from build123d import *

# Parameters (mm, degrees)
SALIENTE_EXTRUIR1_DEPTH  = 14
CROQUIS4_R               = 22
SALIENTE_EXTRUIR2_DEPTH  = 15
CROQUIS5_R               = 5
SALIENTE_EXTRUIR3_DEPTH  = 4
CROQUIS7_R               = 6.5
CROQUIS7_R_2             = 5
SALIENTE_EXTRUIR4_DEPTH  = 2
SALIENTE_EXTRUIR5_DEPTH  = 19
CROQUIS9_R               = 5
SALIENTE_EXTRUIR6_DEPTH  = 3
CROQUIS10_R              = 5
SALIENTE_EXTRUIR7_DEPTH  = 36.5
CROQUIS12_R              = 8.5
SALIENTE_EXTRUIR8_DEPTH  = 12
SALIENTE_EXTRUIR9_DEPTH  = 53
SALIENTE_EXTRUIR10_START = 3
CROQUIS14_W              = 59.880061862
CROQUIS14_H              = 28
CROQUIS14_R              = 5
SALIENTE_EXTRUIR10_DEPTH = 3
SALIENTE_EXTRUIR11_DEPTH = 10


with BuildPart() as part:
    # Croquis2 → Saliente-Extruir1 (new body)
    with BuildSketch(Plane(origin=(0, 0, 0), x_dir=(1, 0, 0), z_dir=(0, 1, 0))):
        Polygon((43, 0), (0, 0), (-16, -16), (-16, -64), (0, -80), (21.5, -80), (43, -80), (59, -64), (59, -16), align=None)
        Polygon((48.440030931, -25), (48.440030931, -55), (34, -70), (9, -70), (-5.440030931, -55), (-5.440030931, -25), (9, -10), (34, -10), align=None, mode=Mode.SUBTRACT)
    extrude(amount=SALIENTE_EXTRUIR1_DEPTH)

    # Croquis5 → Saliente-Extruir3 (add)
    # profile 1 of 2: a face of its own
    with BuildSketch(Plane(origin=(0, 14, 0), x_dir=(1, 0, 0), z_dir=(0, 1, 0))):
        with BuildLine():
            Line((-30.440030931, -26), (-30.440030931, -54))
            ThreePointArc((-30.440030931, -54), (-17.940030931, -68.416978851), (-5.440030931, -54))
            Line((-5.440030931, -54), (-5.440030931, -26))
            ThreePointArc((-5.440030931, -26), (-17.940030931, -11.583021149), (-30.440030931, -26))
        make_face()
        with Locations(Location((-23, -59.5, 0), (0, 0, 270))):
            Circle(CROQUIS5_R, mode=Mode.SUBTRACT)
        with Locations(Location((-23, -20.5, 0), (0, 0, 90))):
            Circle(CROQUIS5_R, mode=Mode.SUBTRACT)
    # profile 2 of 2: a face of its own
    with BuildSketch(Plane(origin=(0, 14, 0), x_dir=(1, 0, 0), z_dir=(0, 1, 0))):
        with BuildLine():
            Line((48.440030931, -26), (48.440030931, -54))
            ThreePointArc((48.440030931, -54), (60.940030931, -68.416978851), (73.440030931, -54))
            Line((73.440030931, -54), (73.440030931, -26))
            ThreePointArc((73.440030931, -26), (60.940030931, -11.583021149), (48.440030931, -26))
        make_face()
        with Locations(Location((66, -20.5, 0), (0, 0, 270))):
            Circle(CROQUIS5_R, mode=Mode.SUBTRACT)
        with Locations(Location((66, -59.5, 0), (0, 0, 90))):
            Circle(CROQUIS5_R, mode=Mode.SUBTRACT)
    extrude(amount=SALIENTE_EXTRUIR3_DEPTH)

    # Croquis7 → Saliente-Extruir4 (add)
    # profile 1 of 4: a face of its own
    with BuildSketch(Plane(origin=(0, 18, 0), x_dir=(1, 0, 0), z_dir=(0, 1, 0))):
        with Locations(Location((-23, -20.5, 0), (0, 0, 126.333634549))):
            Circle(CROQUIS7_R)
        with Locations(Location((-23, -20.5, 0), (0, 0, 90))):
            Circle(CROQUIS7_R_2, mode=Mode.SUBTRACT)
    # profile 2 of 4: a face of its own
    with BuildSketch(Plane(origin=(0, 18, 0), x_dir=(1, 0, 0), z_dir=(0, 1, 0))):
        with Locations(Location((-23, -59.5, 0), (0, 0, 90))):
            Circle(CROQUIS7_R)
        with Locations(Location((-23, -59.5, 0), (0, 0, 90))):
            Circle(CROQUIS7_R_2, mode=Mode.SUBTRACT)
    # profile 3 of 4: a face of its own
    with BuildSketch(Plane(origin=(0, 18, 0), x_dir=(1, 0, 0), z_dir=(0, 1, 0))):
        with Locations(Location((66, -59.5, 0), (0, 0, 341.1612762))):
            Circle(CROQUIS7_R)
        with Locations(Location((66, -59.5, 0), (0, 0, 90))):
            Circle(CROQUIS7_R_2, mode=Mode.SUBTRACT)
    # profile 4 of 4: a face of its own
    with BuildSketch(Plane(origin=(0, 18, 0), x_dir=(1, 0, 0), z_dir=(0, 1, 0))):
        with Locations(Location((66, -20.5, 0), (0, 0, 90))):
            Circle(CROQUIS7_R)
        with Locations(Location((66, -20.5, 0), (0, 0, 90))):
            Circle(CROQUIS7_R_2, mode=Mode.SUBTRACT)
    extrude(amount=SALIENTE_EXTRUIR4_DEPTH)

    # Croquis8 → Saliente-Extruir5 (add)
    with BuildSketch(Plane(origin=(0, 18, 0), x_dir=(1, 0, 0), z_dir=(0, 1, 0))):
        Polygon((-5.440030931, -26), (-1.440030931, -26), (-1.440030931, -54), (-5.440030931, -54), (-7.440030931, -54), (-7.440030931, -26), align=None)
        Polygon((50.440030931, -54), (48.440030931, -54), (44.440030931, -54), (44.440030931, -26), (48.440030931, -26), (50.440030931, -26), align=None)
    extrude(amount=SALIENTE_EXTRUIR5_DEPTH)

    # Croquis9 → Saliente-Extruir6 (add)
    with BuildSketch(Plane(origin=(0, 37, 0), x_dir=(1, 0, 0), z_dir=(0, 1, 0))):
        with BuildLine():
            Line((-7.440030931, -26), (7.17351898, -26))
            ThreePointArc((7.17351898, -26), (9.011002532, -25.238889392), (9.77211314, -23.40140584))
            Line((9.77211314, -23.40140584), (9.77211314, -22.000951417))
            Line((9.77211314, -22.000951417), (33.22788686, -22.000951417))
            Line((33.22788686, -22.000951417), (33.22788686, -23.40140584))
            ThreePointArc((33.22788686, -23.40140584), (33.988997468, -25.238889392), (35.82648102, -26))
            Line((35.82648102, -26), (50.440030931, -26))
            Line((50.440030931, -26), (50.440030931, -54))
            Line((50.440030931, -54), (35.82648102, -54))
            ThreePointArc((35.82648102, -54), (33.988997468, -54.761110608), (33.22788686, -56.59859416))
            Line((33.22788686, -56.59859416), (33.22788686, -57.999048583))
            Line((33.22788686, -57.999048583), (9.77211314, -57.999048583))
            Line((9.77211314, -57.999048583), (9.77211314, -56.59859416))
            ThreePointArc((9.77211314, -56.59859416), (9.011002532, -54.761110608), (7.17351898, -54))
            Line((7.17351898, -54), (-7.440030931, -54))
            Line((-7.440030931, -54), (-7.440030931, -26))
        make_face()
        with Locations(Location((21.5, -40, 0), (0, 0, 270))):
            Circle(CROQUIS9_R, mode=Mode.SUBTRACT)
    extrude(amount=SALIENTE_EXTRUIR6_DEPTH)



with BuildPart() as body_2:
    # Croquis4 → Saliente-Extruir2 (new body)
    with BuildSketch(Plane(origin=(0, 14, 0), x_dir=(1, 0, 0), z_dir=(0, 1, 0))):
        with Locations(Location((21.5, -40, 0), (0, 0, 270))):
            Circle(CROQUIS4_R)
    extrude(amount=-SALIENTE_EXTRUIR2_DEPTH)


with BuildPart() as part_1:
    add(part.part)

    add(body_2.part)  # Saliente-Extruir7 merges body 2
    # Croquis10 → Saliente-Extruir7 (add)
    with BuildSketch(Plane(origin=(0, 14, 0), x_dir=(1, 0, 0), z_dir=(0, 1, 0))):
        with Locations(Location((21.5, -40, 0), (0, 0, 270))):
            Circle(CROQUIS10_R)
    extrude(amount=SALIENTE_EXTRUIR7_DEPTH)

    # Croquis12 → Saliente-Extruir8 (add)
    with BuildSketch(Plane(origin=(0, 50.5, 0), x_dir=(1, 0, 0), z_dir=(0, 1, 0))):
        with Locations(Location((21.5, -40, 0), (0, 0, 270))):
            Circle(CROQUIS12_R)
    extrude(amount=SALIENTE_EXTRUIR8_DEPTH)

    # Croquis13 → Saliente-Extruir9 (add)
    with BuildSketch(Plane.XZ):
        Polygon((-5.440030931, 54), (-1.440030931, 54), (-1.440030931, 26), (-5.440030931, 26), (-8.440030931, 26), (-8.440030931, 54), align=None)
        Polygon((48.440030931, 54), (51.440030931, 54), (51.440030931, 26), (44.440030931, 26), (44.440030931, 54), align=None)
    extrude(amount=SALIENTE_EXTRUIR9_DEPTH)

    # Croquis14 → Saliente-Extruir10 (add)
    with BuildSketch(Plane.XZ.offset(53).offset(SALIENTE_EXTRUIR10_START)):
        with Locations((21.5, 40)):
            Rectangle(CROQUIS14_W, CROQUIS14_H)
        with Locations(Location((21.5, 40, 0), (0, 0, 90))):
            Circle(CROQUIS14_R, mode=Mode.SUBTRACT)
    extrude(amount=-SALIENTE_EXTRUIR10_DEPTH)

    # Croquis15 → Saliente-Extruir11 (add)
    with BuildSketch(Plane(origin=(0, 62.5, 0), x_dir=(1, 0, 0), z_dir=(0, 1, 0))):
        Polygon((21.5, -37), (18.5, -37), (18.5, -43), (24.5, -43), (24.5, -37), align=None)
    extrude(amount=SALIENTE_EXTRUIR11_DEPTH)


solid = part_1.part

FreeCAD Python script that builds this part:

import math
import FreeCAD as App
import Part
import Sketcher
from FreeCAD import Vector


def add_polygon(sketch, points):
    """Adds a closed chain of lines whose ends are joined by coincident constraints."""
    first, n = sketch.GeometryCount, len(points)
    for a, b in zip(points, points[1:] + points[:1]):
        sketch.addGeometry(Part.LineSegment(App.Vector(*a, 0), App.Vector(*b, 0)), False)
    for i in range(n):
        sketch.addConstraint(Sketcher.Constraint("Coincident", first + i, 2, first + (i + 1) % n, 1))

doc = App.newDocument("Part")
body = doc.addObject("PartDesign::Body", "Body")

# Sketch on XZ plane
sketch1 = doc.addObject("Sketcher::SketchObject", "Sketch")
body.addObject(sketch1)
sketch1.AttachmentSupport = (doc.XZ_Plane, [""])
sketch1.MapMode = "FlatFace"
add_polygon(sketch1, [(43, 0), (0, 0), (-16, 16), (-16, 64), (0, 80), (43, 80), (59, 64), (59, 16)])  # lines 0-7
add_polygon(sketch1, [(34, 10), (48, 25), (48, 55), (34, 70), (9, 70), (-5, 55), (-5, 25), (9, 10)])  # lines 8-15
sketch1.addConstraint(Sketcher.Constraint("Horizontal", 0))
sketch1.addConstraint(Sketcher.Constraint("Vertical", 2))
sketch1.addConstraint(Sketcher.Constraint("Horizontal", 4))
sketch1.addConstraint(Sketcher.Constraint("Vertical", 6))
sketch1.addConstraint(Sketcher.Constraint("Vertical", 9))
sketch1.addConstraint(Sketcher.Constraint("Horizontal", 11))
sketch1.addConstraint(Sketcher.Constraint("Vertical", 13))
sketch1.addConstraint(Sketcher.Constraint("Horizontal", 15))
sketch1.addConstraint(Sketcher.Constraint("Coincident", 0, 2, -1, 1))
sketch1.addConstraint(Sketcher.Constraint("PointOnObject", 3, 2, -2))
sketch1.addConstraint(Sketcher.Constraint("Perpendicular", 1, 3))
sketch1.addConstraint(Sketcher.Constraint("Perpendicular", 3, 5))
sketch1.addConstraint(Sketcher.Constraint("Perpendicular", 5, 7))
sketch1.addConstraint(Sketcher.Constraint("Parallel", 8, 12))
sketch1.addConstraint(Sketcher.Constraint("Parallel", 10, 14))
sketch1.addConstraint(Sketcher.Constraint("Horizontal", 2, 2, 5, 2))
sketch1.addConstraint(Sketcher.Constraint("Horizontal", 1, 2, 6, 2))
sketch1.addConstraint(Sketcher.Constraint("Horizontal", 9, 2, 12, 2))
sketch1.addConstraint(Sketcher.Constraint("Horizontal", 8, 2, 13, 2))
sketch1.addConstraint(Sketcher.Constraint("Vertical", 4, 2, 7, 2))
sketch1.addConstraint(Sketcher.Constraint("Vertical", 11, 2, 14, 2))
sketch1.addConstraint(Sketcher.Constraint("Vertical", 10, 2, 15, 2))
sketch1.addConstraint(Sketcher.Constraint("DistanceX", 0, 2, 0, 1, 43.0))
sketch1.addConstraint(Sketcher.Constraint("DistanceX", 11, 2, 11, 1, 25.0))
sketch1.addConstraint(Sketcher.Constraint("DistanceY", 2, 1, 2, 2, 48.0))
sketch1.addConstraint(Sketcher.Constraint("DistanceY", 9, 1, 9, 2, 30.0))
sketch1.addConstraint(Sketcher.Constraint("DistanceX", 1, 2, -1, 1, 16.0))
sketch1.addConstraint(Sketcher.Constraint("DistanceY", -1, 1, 8, 2, 25.0))
sketch1.addConstraint(Sketcher.Constraint("DistanceX", -1, 1, 10, 2, 34.0))
sketch1.addConstraint(Sketcher.Constraint("DistanceY", -1, 1, 10, 2, 70.0))
sketch1.addConstraint(Sketcher.Constraint("Distance", 8, 20.821011))
pad1 = doc.addObject("PartDesign::Pad", "Pad")
body.addObject(pad1)
pad1.Profile = sketch1
pad1.Length = 14
pad1.Reversed = True

# Sketch on XZ plane
sketch2 = doc.addObject("Sketcher::SketchObject", "Sketch001")
body.addObject(sketch2)
sketch2.AttachmentSupport = (doc.XZ_Plane, [""])
sketch2.MapMode = "FlatFace"
sketch2.AttachmentOffset = App.Placement(Vector(0, 0, -14), App.Rotation())
sketch2.addGeometry(Part.LineSegment(Vector(-30, 26, 0), Vector(-30, 54, 0)), False)
sketch2.addGeometry(Part.ArcOfCircle(Part.Circle(Vector(-18, 56, 0), Vector(0, 0, 1), 13), math.radians(-8), math.radians(188)), False)
sketch2.addGeometry(Part.LineSegment(Vector(-5, 54, 0), Vector(-5, 26, 0)), False)
sketch2.addGeometry(Part.ArcOfCircle(Part.Circle(Vector(-18, 24, 0), Vector(0, 0, 1), 13), math.radians(172), math.radians(368)), False)
sketch2.addGeometry(Part.Circle(Vector(-23, 60, 0), Vector(0, 0, 1), 5), False)
sketch2.addGeometry(Part.Circle(Vector(-23, 20, 0), Vector(0, 0, 1), 5), False)
sketch2.addGeometry(Part.LineSegment(Vector(48, 26, 0), Vector(48, 54, 0)), False)
sketch2.addGeometry(Part.ArcOfCircle(Part.Circle(Vector(61, 56, 0), Vector(0, 0, 1), 13), math.radians(-8), math.radians(188)), False)
sketch2.addGeometry(Part.LineSegment(Vector(73, 54, 0), Vector(73, 26, 0)), False)
sketch2.addGeometry(Part.ArcOfCircle(Part.Circle(Vector(61, 24, 0), Vector(0, 0, 1), 13), math.radians(172), math.radians(368)), False)
sketch2.addGeometry(Part.Circle(Vector(66, 60, 0), Vector(0, 0, 1), 5), False)
sketch2.addGeometry(Part.Circle(Vector(66, 20, 0), Vector(0, 0, 1), 5), False)
sketch2.addConstraint(Sketcher.Constraint("Coincident", 0, 2, 1, 2))
sketch2.addConstraint(Sketcher.Constraint("Coincident", 1, 1, 2, 1))
sketch2.addConstraint(Sketcher.Constraint("Coincident", 2, 2, 3, 2))
sketch2.addConstraint(Sketcher.Constraint("Coincident", 3, 1, 0, 1))
sketch2.addConstraint(Sketcher.Constraint("Coincident", 6, 2, 7, 2))
sketch2.addConstraint(Sketcher.Constraint("Coincident", 7, 1, 8, 1))
sketch2.addConstraint(Sketcher.Constraint("Coincident", 8, 2, 9, 2))
sketch2.addConstraint(Sketcher.Constraint("Coincident", 9, 1, 6, 1))
sketch2.addConstraint(Sketcher.Constraint("Vertical", 0))
sketch2.addConstraint(Sketcher.Constraint("Vertical", 2))
sketch2.addConstraint(Sketcher.Constraint("Vertical", 6))
sketch2.addConstraint(Sketcher.Constraint("Vertical", 8))
sketch2.addConstraint(Sketcher.Constraint("Equal", 1, 3))
sketch2.addConstraint(Sketcher.Constraint("Equal", 4, 5))
sketch2.addConstraint(Sketcher.Constraint("Equal", 3, 7))
sketch2.addConstraint(Sketcher.Constraint("Equal", 7, 9))
sketch2.addConstraint(Sketcher.Constraint("Equal", 5, 10))
sketch2.addConstraint(Sketcher.Constraint("Equal", 10, 11))
sketch2.addConstraint(Sketcher.Constraint("Horizontal", 1, 3, 7, 3))
sketch2.addConstraint(Sketcher.Constraint("Horizontal", 3, 3, 9, 3))
sketch2.addConstraint(Sketcher.Constraint("Horizontal", 4, 3, 10, 3))
sketch2.addConstraint(Sketcher.Constraint("Horizontal", 5, 3, 11, 3))
sketch2.addConstraint(Sketcher.Constraint("Horizontal", 0, 2, 1, 1))
sketch2.addConstraint(Sketcher.Constraint("Horizontal", 2, 2, 3, 1))
sketch2.addConstraint(Sketcher.Constraint("Horizontal", 1, 1, 6, 2))
sketch2.addConstraint(Sketcher.Constraint("Horizontal", 6, 2, 7, 1))
sketch2.addConstraint(Sketcher.Constraint("Horizontal", 3, 1, 8, 2))
sketch2.addConstraint(Sketcher.Constraint("Vertical", 4, 3, 5, 3))
sketch2.addConstraint(Sketcher.Constraint("Vertical", 10, 3, 11, 3))
sketch2.addConstraint(Sketcher.Constraint("Diameter", 4, 10.0))
sketch2.addConstraint(Sketcher.Constraint("DistanceY", 0, 1, 0, 2, 28.0))
sketch2.addConstraint(Sketcher.Constraint("DistanceX", 4, 3, -1, 1, 23.0))
sketch2.addConstraint(Sketcher.Constraint("DistanceX", -1, 1, 10, 3, 66.0))
sketch2.addConstraint(Sketcher.Constraint("DistanceY", -1, 1, 0, 2, 54.0))
sketch2.addConstraint(Sketcher.Constraint("DistanceY", 5, 3, 4, 3, 39.0))
sketch2.addConstraint(Sketcher.Constraint("DistanceX", 0, 2, 1, 1, 25.0))
sketch2.addConstraint(Sketcher.Constraint("DistanceY", -1, 1, 4, 3, 59.5))
sketch2.addConstraint(Sketcher.Constraint("Radius", 1, 12.627447))
sketch2.addConstraint(Sketcher.Constraint("DistanceX", 1, 3, -1, 1, 17.940031))
sketch2.addConstraint(Sketcher.Constraint("DistanceX", -1, 1, 7, 3, 60.940031))
pad2 = doc.addObject("PartDesign::Pad", "Pad001")
body.addObject(pad2)
pad2.Profile = sketch2
pad2.Length = 4
pad2.Reversed = True

# Sketch on XZ plane
sketch3 = doc.addObject("Sketcher::SketchObject", "Sketch002")
body.addObject(sketch3)
sketch3.AttachmentSupport = (doc.XZ_Plane, [""])
sketch3.MapMode = "FlatFace"
sketch3.AttachmentOffset = App.Placement(Vector(0, 0, -18), App.Rotation())
sketch3.addGeometry(Part.Circle(Vector(-23, 20, 0), Vector(0, 0, 1), 6), False)
sketch3.addGeometry(Part.Circle(Vector(-23, 20, 0), Vector(0, 0, 1), 5), False)
sketch3.addGeometry(Part.Circle(Vector(-23, 60, 0), Vector(0, 0, 1), 6), False)
sketch3.addGeometry(Part.Circle(Vector(-23, 60, 0), Vector(0, 0, 1), 5), False)
sketch3.addGeometry(Part.Circle(Vector(66, 60, 0), Vector(0, 0, 1), 6), False)
sketch3.addGeometry(Part.Circle(Vector(66, 60, 0), Vector(0, 0, 1), 5), False)
sketch3.addGeometry(Part.Circle(Vector(66, 20, 0), Vector(0, 0, 1), 6), False)
sketch3.addGeometry(Part.Circle(Vector(66, 20, 0), Vector(0, 0, 1), 5), False)
sketch3.addConstraint(Sketcher.Constraint("Coincident", 1, 3, 0, 3))
sketch3.addConstraint(Sketcher.Constraint("Coincident", 3, 3, 2, 3))
sketch3.addConstraint(Sketcher.Constraint("Coincident", 5, 3, 4, 3))
sketch3.addConstraint(Sketcher.Constraint("Coincident", 7, 3, 6, 3))
sketch3.addConstraint(Sketcher.Constraint("Equal", 0, 2))
sketch3.addConstraint(Sketcher.Constraint("Equal", 1, 3))
sketch3.addConstraint(Sketcher.Constraint("Equal", 2, 4))
sketch3.addConstraint(Sketcher.Constraint("Equal", 3, 5))
sketch3.addConstraint(Sketcher.Constraint("Equal", 4, 6))
sketch3.addConstraint(Sketcher.Constraint("Equal", 5, 7))
sketch3.addConstraint(Sketcher.Constraint("Horizontal", 3, 3, 4, 3))
sketch3.addConstraint(Sketcher.Constraint("Horizontal", 1, 3, 6, 3))
sketch3.addConstraint(Sketcher.Constraint("Vertical", 1, 3, 2, 3))
sketch3.addConstraint(Sketcher.Constraint("Vertical", 5, 3, 6, 3))
sketch3.addConstraint(Sketcher.Constraint("Diameter", 0, 13.0))
sketch3.addConstraint(Sketcher.Constraint("Diameter", 1, 10.0))
sketch3.addConstraint(Sketcher.Constraint("DistanceX", 0, 3, -1, 1, 23.0))
sketch3.addConstraint(Sketcher.Constraint("DistanceX", -1, 1, 4, 3, 66.0))
sketch3.addConstraint(Sketcher.Constraint("DistanceY", 0, 3, 2, 3, 39.0))
sketch3.addConstraint(Sketcher.Constraint("DistanceY", -1, 1, 0, 3, 20.5))
pad3 = doc.addObject("PartDesign::Pad", "Pad002")
body.addObject(pad3)
pad3.Profile = sketch3
pad3.Length = 2
pad3.Reversed = True

# Sketch on XZ plane
sketch4 = doc.addObject("Sketcher::SketchObject", "Sketch003")
body.addObject(sketch4)
sketch4.AttachmentSupport = (doc.XZ_Plane, [""])
sketch4.MapMode = "FlatFace"
sketch4.AttachmentOffset = App.Placement(Vector(0, 0, -18), App.Rotation())
add_polygon(sketch4, [(-1, 26), (-7, 26), (-7, 54), (-1, 54)])  # lines 0-3
add_polygon(sketch4, [(44, 54), (50, 54), (50, 26), (44, 26)])  # lines 4-7
sketch4.addConstraint(Sketcher.Constraint("Horizontal", 0))
sketch4.addConstraint(Sketcher.Constraint("Vertical", 1))
sketch4.addConstraint(Sketcher.Constraint("Horizontal", 2))
sketch4.addConstraint(Sketcher.Constraint("Vertical", 3))
sketch4.addConstraint(Sketcher.Constraint("Horizontal", 4))
sketch4.addConstraint(Sketcher.Constraint("Vertical", 5))
sketch4.addConstraint(Sketcher.Constraint("Horizontal", 6))
sketch4.addConstraint(Sketcher.Constraint("Vertical", 7))
sketch4.addConstraint(Sketcher.Constraint("Horizontal", 2, 2, 4, 2))
sketch4.addConstraint(Sketcher.Constraint("Horizontal", 3, 2, 5, 2))
sketch4.addConstraint(Sketcher.Constraint("Equal", 2, 4))
sketch4.addConstraint(Sketcher.Constraint("DistanceX", 0, 2, 0, 1, 6.0))
sketch4.addConstraint(Sketcher.Constraint("DistanceY", 1, 1, 1, 2, 28.0))
sketch4.addConstraint(Sketcher.Constraint("DistanceY", -1, 1, 0, 2, 26.0))
sketch4.addConstraint(Sketcher.Constraint("DistanceX", 0, 2, -1, 1, 7.440031))
sketch4.addConstraint(Sketcher.Constraint("DistanceX", -1, 1, 4, 2, 50.440031))
pad4 = doc.addObject("PartDesign::Pad", "Pad003")
body.addObject(pad4)
pad4.Profile = sketch4
pad4.Length = 19
pad4.Reversed = True

# Sketch on XZ plane
sketch5 = doc.addObject("Sketcher::SketchObject", "Sketch004")
body.addObject(sketch5)
sketch5.AttachmentSupport = (doc.XZ_Plane, [""])
sketch5.MapMode = "FlatFace"
sketch5.AttachmentOffset = App.Placement(Vector(0, 0, -37), App.Rotation())
sketch5.addGeometry(Part.LineSegment(Vector(7.2, 26, 0), Vector(-7.4, 26, 0)), False)
sketch5.addGeometry(Part.LineSegment(Vector(-7.4, 26, 0), Vector(-7.4, 54, 0)), False)
sketch5.addGeometry(Part.LineSegment(Vector(-7.4, 54, 0), Vector(7.2, 54, 0)), False)
sketch5.addGeometry(Part.ArcOfCircle(Part.Circle(Vector(7.2, 56.6, 0), Vector(0, 0, 1), 2.6), math.radians(-90), math.radians(0)), False)
sketch5.addGeometry(Part.LineSegment(Vector(9.8, 56.6, 0), Vector(9.8, 58, 0)), False)
sketch5.addGeometry(Part.LineSegment(Vector(9.8, 58, 0), Vector(33.2, 58, 0)), False)
sketch5.addGeometry(Part.LineSegment(Vector(33.2, 58, 0), Vector(33.2, 56.6, 0)), False)
sketch5.addGeometry(Part.ArcOfCircle(Part.Circle(Vector(35.8, 56.6, 0), Vector(0, 0, 1), 2.6), math.radians(180), math.radians(270)), False)
sketch5.addGeometry(Part.LineSegment(Vector(35.8, 54, 0), Vector(50.4, 54, 0)), False)
sketch5.addGeometry(Part.LineSegment(Vector(50.4, 54, 0), Vector(50.4, 26, 0)), False)
sketch5.addGeometry(Part.LineSegment(Vector(50.4, 26, 0), Vector(35.8, 26, 0)), False)
sketch5.addGeometry(Part.ArcOfCircle(Part.Circle(Vector(35.8, 23.4, 0), Vector(0, 0, 1), 2.6), math.radians(90), math.radians(180)), False)
sketch5.addGeometry(Part.LineSegment(Vector(33.2, 23.4, 0), Vector(33.2, 22, 0)), False)
sketch5.addGeometry(Part.LineSegment(Vector(33.2, 22, 0), Vector(9.8, 22, 0)), False)
sketch5.addGeometry(Part.LineSegment(Vector(9.8, 22, 0), Vector(9.8, 23.4, 0)), False)
sketch5.addGeometry(Part.ArcOfCircle(Part.Circle(Vector(7.2, 23.4, 0), Vector(0, 0, 1), 2.6), math.radians(0), math.radians(90)), False)
sketch5.addGeometry(Part.Circle(Vector(21.5, 40, 0), Vector(0, 0, 1), 5), False)
sketch5.addConstraint(Sketcher.Constraint("Coincident", 0, 2, 1, 1))
sketch5.addConstraint(Sketcher.Constraint("Coincident", 1, 2, 2, 1))
sketch5.addConstraint(Sketcher.Constraint("Tangent", 2, 2, 3, 1))
sketch5.addConstraint(Sketcher.Constraint("Tangent", 3, 2, 4, 1))
sketch5.addConstraint(Sketcher.Constraint("Coincident", 4, 2, 5, 1))
sketch5.addConstraint(Sketcher.Constraint("Coincident", 5, 2, 6, 1))
sketch5.addConstraint(Sketcher.Constraint("Tangent", 6, 2, 7, 1))
sketch5.addConstraint(Sketcher.Constraint("Tangent", 7, 2, 8, 1))
sketch5.addConstraint(Sketcher.Constraint("Coincident", 8, 2, 9, 1))
sketch5.addConstraint(Sketcher.Constraint("Coincident", 9, 2, 10, 1))
sketch5.addConstraint(Sketcher.Constraint("Tangent", 10, 2, 11, 1))
sketch5.addConstraint(Sketcher.Constraint("Tangent", 11, 2, 12, 1))
sketch5.addConstraint(Sketcher.Constraint("Coincident", 12, 2, 13, 1))
sketch5.addConstraint(Sketcher.Constraint("Coincident", 13, 2, 14, 1))
sketch5.addConstraint(Sketcher.Constraint("Tangent", 14, 2, 15, 1))
sketch5.addConstraint(Sketcher.Constraint("Tangent", 15, 2, 0, 1))
sketch5.addConstraint(Sketcher.Constraint("Horizontal", 0))
sketch5.addConstraint(Sketcher.Constraint("Vertical", 1))
sketch5.addConstraint(Sketcher.Constraint("Horizontal", 2))
sketch5.addConstraint(Sketcher.Constraint("Vertical", 4))
sketch5.addConstraint(Sketcher.Constraint("Horizontal", 5))
sketch5.addConstraint(Sketcher.Constraint("Vertical", 6))
sketch5.addConstraint(Sketcher.Constraint("Horizontal", 8))
sketch5.addConstraint(Sketcher.Constraint("Vertical", 9))
sketch5.addConstraint(Sketcher.Constraint("Horizontal", 10))
sketch5.addConstraint(Sketcher.Constraint("Vertical", 12))
sketch5.addConstraint(Sketcher.Constraint("Horizontal", 13))
sketch5.addConstraint(Sketcher.Constraint("Vertical", 14))
sketch5.addConstraint(Sketcher.Constraint("Equal", 3, 7))
sketch5.addConstraint(Sketcher.Constraint("Equal", 7, 11))
sketch5.addConstraint(Sketcher.Constraint("Equal", 11, 15))
sketch5.addConstraint(Sketcher.Constraint("Horizontal", 3, 3, 7, 3))
sketch5.addConstraint(Sketcher.Constraint("Horizontal", 11, 3, 15, 3))
sketch5.addConstraint(Sketcher.Constraint("Vertical", 7, 3, 11, 3))
sketch5.addConstraint(Sketcher.Constraint("Vertical", 3, 3, 15, 3))
sketch5.addConstraint(Sketcher.Constraint("Equal", 2, 8))
sketch5.addConstraint(Sketcher.Constraint("Equal", 6, 12))
sketch5.addConstraint(Sketcher.Constraint("Diameter", 16, 10.0))
sketch5.addConstraint(Sketcher.Constraint("DistanceY", 1, 1, 1, 2, 28.0))
sketch5.addConstraint(Sketcher.Constraint("DistanceY", -1, 1, 16, 3, 40.0))
sketch5.addConstraint(Sketcher.Constraint("DistanceY", -1, 1, 0, 2, 26.0))
sketch5.addConstraint(Sketcher.Constraint("DistanceX", -1, 1, 16, 3, 21.5))
sketch5.addConstraint(Sketcher.Constraint("Radius", 3, 2.598594))
sketch5.addConstraint(Sketcher.Constraint("DistanceX", 0, 2, 0, 1, 14.61355))
sketch5.addConstraint(Sketcher.Constraint("DistanceX", 5, 1, 5, 2, 23.455774))
sketch5.addConstraint(Sketcher.Constraint("DistanceY", 4, 1, 4, 2, 1.400454))
sketch5.addConstraint(Sketcher.Constraint("DistanceX", -1, 1, 3, 3, 7.173519))
pad5 = doc.addObject("PartDesign::Pad", "Pad004")
body.addObject(pad5)
pad5.Profile = sketch5
pad5.Length = 3
pad5.Reversed = True
body2 = doc.addObject("PartDesign::Body", "Body001")

# Sketch on XZ plane
sketch6 = doc.addObject("Sketcher::SketchObject", "Sketch005")
body2.addObject(sketch6)
sketch6.AttachmentSupport = (doc.getObject("XZ_Plane001"), [""])
sketch6.MapMode = "FlatFace"
sketch6.AttachmentOffset = App.Placement(Vector(0, 0, -14), App.Rotation())
sketch6.addGeometry(Part.Circle(Vector(22, 40, 0), Vector(0, 0, 1), 22), False)
sketch6.addConstraint(Sketcher.Constraint("Diameter", 0, 44.0))
sketch6.addConstraint(Sketcher.Constraint("DistanceY", -1, 1, 0, 3, 40.0))
sketch6.addConstraint(Sketcher.Constraint("DistanceX", -1, 1, 0, 3, 21.5))
pad6 = doc.addObject("PartDesign::Pad", "Pad005")
body2.addObject(pad6)
pad6.Profile = sketch6
pad6.Length = 15
body.AllowCompound = True
doc.recompute()

boolean = doc.addObject("PartDesign::Boolean", "Boolean")
body.addObject(boolean)
boolean.Type = "Fuse"
boolean.addObjects([body2])

# Sketch on XZ plane
sketch7 = doc.addObject("Sketcher::SketchObject", "Sketch006")
body.addObject(sketch7)
sketch7.AttachmentSupport = (doc.XZ_Plane, [""])
sketch7.MapMode = "FlatFace"
sketch7.AttachmentOffset = App.Placement(Vector(0, 0, -14), App.Rotation())
sketch7.addGeometry(Part.Circle(Vector(22, 40, 0), Vector(0, 0, 1), 5), False)
sketch7.addConstraint(Sketcher.Constraint("Diameter", 0, 10.0))
sketch7.addConstraint(Sketcher.Constraint("DistanceY", -1, 1, 0, 3, 40.0))
sketch7.addConstraint(Sketcher.Constraint("DistanceX", -1, 1, 0, 3, 21.5))
pad7 = doc.addObject("PartDesign::Pad", "Pad006")
body.addObject(pad7)
pad7.Profile = sketch7
pad7.Length = 36.5
pad7.Reversed = True

# Sketch on XZ plane
sketch8 = doc.addObject("Sketcher::SketchObject", "Sketch007")
body.addObject(sketch8)
sketch8.AttachmentSupport = (doc.XZ_Plane, [""])
sketch8.MapMode = "FlatFace"
sketch8.AttachmentOffset = App.Placement(Vector(0, 0, -50.5), App.Rotation())
sketch8.addGeometry(Part.Circle(Vector(22, 40, 0), Vector(0, 0, 1), 8), False)
sketch8.addConstraint(Sketcher.Constraint("Diameter", 0, 17.0))
sketch8.addConstraint(Sketcher.Constraint("DistanceY", -1, 1, 0, 3, 40.0))
sketch8.addConstraint(Sketcher.Constraint("DistanceX", -1, 1, 0, 3, 21.5))
pad8 = doc.addObject("PartDesign::Pad", "Pad007")
body.addObject(pad8)
pad8.Profile = sketch8
pad8.Length = 12
pad8.Reversed = True

# Sketch on XZ plane
sketch9 = doc.addObject("Sketcher::SketchObject", "Sketch008")
body.addObject(sketch9)
sketch9.AttachmentSupport = (doc.XZ_Plane, [""])
sketch9.MapMode = "FlatFace"
add_polygon(sketch9, [(-1, 54), (-8, 54), (-8, 26), (-1, 26)])  # lines 0-3
add_polygon(sketch9, [(51, 54), (44, 54), (44, 26), (51, 26)])  # lines 4-7
sketch9.addConstraint(Sketcher.Constraint("Horizontal", 0))
sketch9.addConstraint(Sketcher.Constraint("Vertical", 1))
sketch9.addConstraint(Sketcher.Constraint("Horizontal", 2))
sketch9.addConstraint(Sketcher.Constraint("Vertical", 3))
sketch9.addConstraint(Sketcher.Constraint("Horizontal", 4))
sketch9.addConstraint(Sketcher.Constraint("Vertical", 5))
sketch9.addConstraint(Sketcher.Constraint("Horizontal", 6))
sketch9.addConstraint(Sketcher.Constraint("Vertical", 7))
sketch9.addConstraint(Sketcher.Constraint("Horizontal", 3, 2, 4, 2))
sketch9.addConstraint(Sketcher.Constraint("Horizontal", 2, 2, 5, 2))
sketch9.addConstraint(Sketcher.Constraint("Equal", 2, 4))
sketch9.addConstraint(Sketcher.Constraint("DistanceX", 0, 2, 0, 1, 7.0))
sketch9.addConstraint(Sketcher.Constraint("DistanceY", 1, 2, 1, 1, 28.0))
sketch9.addConstraint(Sketcher.Constraint("DistanceY", -1, 1, 0, 2, 54.0))
sketch9.addConstraint(Sketcher.Constraint("DistanceX", 0, 2, -1, 1, 8.440031))
sketch9.addConstraint(Sketcher.Constraint("DistanceX", -1, 1, 4, 2, 44.440031))
pad9 = doc.addObject("PartDesign::Pad", "Pad008")
body.addObject(pad9)
pad9.Profile = sketch9
pad9.Length = 53

# Sketch on XZ plane
sketch10 = doc.addObject("Sketcher::SketchObject", "Sketch009")
body.addObject(sketch10)
sketch10.AttachmentSupport = (doc.XZ_Plane, [""])
sketch10.MapMode = "FlatFace"
sketch10.AttachmentOffset = App.Placement(Vector(0, 0, 56), App.Rotation())
add_polygon(sketch10, [(-8, 54), (-8, 26), (51, 26), (51, 54)])  # lines 0-3
sketch10.addGeometry(Part.Circle(Vector(22, 40, 0), Vector(0, 0, 1), 5), False)  # 4
sketch10.addConstraint(Sketcher.Constraint("Vertical", 0))
sketch10.addConstraint(Sketcher.Constraint("Horizontal", 1))
sketch10.addConstraint(Sketcher.Constraint("Vertical", 2))
sketch10.addConstraint(Sketcher.Constraint("Horizontal", 3))
sketch10.addConstraint(Sketcher.Constraint("Diameter", 4, 10.0))
sketch10.addConstraint(Sketcher.Constraint("DistanceY", 0, 2, 0, 1, 28.0))
sketch10.addConstraint(Sketcher.Constraint("DistanceY", -1, 1, 4, 3, 40.0))
sketch10.addConstraint(Sketcher.Constraint("DistanceY", -1, 1, 0, 2, 26.0))
sketch10.addConstraint(Sketcher.Constraint("DistanceX", -1, 1, 4, 3, 21.5))
sketch10.addConstraint(Sketcher.Constraint("DistanceX", 1, 1, 1, 2, 59.880062))
sketch10.addConstraint(Sketcher.Constraint("DistanceX", 0, 2, -1, 1, 8.440031))
pad10 = doc.addObject("PartDesign::Pad", "Pad009")
body.addObject(pad10)
pad10.Profile = sketch10
pad10.Length = 3
pad10.Reversed = True

# Sketch on XZ plane
sketch11 = doc.addObject("Sketcher::SketchObject", "Sketch010")
body.addObject(sketch11)
sketch11.AttachmentSupport = (doc.XZ_Plane, [""])
sketch11.MapMode = "FlatFace"
sketch11.AttachmentOffset = App.Placement(Vector(0, 0, -62.5), App.Rotation())
add_polygon(sketch11, [(18, 37), (18, 43), (24, 43), (24, 37)])  # lines 0-3
sketch11.addConstraint(Sketcher.Constraint("Vertical", 0))
sketch11.addConstraint(Sketcher.Constraint("Horizontal", 1))
sketch11.addConstraint(Sketcher.Constraint("Vertical", 2))
sketch11.addConstraint(Sketcher.Constraint("Horizontal", 3))
sketch11.addConstraint(Sketcher.Constraint("Equal", 3, 0))
sketch11.addConstraint(Sketcher.Constraint("DistanceX", 1, 1, 1, 2, 6.0))
sketch11.addConstraint(Sketcher.Constraint("DistanceY", -1, 1, 0, 2, 43.0))
sketch11.addConstraint(Sketcher.Constraint("DistanceX", -1, 1, 0, 2, 18.5))
pad11 = doc.addObject("PartDesign::Pad", "Pad010")
body.addObject(pad11)
pad11.Profile = sketch11
pad11.Length = 10
pad11.Reversed = True

doc.recompute()
